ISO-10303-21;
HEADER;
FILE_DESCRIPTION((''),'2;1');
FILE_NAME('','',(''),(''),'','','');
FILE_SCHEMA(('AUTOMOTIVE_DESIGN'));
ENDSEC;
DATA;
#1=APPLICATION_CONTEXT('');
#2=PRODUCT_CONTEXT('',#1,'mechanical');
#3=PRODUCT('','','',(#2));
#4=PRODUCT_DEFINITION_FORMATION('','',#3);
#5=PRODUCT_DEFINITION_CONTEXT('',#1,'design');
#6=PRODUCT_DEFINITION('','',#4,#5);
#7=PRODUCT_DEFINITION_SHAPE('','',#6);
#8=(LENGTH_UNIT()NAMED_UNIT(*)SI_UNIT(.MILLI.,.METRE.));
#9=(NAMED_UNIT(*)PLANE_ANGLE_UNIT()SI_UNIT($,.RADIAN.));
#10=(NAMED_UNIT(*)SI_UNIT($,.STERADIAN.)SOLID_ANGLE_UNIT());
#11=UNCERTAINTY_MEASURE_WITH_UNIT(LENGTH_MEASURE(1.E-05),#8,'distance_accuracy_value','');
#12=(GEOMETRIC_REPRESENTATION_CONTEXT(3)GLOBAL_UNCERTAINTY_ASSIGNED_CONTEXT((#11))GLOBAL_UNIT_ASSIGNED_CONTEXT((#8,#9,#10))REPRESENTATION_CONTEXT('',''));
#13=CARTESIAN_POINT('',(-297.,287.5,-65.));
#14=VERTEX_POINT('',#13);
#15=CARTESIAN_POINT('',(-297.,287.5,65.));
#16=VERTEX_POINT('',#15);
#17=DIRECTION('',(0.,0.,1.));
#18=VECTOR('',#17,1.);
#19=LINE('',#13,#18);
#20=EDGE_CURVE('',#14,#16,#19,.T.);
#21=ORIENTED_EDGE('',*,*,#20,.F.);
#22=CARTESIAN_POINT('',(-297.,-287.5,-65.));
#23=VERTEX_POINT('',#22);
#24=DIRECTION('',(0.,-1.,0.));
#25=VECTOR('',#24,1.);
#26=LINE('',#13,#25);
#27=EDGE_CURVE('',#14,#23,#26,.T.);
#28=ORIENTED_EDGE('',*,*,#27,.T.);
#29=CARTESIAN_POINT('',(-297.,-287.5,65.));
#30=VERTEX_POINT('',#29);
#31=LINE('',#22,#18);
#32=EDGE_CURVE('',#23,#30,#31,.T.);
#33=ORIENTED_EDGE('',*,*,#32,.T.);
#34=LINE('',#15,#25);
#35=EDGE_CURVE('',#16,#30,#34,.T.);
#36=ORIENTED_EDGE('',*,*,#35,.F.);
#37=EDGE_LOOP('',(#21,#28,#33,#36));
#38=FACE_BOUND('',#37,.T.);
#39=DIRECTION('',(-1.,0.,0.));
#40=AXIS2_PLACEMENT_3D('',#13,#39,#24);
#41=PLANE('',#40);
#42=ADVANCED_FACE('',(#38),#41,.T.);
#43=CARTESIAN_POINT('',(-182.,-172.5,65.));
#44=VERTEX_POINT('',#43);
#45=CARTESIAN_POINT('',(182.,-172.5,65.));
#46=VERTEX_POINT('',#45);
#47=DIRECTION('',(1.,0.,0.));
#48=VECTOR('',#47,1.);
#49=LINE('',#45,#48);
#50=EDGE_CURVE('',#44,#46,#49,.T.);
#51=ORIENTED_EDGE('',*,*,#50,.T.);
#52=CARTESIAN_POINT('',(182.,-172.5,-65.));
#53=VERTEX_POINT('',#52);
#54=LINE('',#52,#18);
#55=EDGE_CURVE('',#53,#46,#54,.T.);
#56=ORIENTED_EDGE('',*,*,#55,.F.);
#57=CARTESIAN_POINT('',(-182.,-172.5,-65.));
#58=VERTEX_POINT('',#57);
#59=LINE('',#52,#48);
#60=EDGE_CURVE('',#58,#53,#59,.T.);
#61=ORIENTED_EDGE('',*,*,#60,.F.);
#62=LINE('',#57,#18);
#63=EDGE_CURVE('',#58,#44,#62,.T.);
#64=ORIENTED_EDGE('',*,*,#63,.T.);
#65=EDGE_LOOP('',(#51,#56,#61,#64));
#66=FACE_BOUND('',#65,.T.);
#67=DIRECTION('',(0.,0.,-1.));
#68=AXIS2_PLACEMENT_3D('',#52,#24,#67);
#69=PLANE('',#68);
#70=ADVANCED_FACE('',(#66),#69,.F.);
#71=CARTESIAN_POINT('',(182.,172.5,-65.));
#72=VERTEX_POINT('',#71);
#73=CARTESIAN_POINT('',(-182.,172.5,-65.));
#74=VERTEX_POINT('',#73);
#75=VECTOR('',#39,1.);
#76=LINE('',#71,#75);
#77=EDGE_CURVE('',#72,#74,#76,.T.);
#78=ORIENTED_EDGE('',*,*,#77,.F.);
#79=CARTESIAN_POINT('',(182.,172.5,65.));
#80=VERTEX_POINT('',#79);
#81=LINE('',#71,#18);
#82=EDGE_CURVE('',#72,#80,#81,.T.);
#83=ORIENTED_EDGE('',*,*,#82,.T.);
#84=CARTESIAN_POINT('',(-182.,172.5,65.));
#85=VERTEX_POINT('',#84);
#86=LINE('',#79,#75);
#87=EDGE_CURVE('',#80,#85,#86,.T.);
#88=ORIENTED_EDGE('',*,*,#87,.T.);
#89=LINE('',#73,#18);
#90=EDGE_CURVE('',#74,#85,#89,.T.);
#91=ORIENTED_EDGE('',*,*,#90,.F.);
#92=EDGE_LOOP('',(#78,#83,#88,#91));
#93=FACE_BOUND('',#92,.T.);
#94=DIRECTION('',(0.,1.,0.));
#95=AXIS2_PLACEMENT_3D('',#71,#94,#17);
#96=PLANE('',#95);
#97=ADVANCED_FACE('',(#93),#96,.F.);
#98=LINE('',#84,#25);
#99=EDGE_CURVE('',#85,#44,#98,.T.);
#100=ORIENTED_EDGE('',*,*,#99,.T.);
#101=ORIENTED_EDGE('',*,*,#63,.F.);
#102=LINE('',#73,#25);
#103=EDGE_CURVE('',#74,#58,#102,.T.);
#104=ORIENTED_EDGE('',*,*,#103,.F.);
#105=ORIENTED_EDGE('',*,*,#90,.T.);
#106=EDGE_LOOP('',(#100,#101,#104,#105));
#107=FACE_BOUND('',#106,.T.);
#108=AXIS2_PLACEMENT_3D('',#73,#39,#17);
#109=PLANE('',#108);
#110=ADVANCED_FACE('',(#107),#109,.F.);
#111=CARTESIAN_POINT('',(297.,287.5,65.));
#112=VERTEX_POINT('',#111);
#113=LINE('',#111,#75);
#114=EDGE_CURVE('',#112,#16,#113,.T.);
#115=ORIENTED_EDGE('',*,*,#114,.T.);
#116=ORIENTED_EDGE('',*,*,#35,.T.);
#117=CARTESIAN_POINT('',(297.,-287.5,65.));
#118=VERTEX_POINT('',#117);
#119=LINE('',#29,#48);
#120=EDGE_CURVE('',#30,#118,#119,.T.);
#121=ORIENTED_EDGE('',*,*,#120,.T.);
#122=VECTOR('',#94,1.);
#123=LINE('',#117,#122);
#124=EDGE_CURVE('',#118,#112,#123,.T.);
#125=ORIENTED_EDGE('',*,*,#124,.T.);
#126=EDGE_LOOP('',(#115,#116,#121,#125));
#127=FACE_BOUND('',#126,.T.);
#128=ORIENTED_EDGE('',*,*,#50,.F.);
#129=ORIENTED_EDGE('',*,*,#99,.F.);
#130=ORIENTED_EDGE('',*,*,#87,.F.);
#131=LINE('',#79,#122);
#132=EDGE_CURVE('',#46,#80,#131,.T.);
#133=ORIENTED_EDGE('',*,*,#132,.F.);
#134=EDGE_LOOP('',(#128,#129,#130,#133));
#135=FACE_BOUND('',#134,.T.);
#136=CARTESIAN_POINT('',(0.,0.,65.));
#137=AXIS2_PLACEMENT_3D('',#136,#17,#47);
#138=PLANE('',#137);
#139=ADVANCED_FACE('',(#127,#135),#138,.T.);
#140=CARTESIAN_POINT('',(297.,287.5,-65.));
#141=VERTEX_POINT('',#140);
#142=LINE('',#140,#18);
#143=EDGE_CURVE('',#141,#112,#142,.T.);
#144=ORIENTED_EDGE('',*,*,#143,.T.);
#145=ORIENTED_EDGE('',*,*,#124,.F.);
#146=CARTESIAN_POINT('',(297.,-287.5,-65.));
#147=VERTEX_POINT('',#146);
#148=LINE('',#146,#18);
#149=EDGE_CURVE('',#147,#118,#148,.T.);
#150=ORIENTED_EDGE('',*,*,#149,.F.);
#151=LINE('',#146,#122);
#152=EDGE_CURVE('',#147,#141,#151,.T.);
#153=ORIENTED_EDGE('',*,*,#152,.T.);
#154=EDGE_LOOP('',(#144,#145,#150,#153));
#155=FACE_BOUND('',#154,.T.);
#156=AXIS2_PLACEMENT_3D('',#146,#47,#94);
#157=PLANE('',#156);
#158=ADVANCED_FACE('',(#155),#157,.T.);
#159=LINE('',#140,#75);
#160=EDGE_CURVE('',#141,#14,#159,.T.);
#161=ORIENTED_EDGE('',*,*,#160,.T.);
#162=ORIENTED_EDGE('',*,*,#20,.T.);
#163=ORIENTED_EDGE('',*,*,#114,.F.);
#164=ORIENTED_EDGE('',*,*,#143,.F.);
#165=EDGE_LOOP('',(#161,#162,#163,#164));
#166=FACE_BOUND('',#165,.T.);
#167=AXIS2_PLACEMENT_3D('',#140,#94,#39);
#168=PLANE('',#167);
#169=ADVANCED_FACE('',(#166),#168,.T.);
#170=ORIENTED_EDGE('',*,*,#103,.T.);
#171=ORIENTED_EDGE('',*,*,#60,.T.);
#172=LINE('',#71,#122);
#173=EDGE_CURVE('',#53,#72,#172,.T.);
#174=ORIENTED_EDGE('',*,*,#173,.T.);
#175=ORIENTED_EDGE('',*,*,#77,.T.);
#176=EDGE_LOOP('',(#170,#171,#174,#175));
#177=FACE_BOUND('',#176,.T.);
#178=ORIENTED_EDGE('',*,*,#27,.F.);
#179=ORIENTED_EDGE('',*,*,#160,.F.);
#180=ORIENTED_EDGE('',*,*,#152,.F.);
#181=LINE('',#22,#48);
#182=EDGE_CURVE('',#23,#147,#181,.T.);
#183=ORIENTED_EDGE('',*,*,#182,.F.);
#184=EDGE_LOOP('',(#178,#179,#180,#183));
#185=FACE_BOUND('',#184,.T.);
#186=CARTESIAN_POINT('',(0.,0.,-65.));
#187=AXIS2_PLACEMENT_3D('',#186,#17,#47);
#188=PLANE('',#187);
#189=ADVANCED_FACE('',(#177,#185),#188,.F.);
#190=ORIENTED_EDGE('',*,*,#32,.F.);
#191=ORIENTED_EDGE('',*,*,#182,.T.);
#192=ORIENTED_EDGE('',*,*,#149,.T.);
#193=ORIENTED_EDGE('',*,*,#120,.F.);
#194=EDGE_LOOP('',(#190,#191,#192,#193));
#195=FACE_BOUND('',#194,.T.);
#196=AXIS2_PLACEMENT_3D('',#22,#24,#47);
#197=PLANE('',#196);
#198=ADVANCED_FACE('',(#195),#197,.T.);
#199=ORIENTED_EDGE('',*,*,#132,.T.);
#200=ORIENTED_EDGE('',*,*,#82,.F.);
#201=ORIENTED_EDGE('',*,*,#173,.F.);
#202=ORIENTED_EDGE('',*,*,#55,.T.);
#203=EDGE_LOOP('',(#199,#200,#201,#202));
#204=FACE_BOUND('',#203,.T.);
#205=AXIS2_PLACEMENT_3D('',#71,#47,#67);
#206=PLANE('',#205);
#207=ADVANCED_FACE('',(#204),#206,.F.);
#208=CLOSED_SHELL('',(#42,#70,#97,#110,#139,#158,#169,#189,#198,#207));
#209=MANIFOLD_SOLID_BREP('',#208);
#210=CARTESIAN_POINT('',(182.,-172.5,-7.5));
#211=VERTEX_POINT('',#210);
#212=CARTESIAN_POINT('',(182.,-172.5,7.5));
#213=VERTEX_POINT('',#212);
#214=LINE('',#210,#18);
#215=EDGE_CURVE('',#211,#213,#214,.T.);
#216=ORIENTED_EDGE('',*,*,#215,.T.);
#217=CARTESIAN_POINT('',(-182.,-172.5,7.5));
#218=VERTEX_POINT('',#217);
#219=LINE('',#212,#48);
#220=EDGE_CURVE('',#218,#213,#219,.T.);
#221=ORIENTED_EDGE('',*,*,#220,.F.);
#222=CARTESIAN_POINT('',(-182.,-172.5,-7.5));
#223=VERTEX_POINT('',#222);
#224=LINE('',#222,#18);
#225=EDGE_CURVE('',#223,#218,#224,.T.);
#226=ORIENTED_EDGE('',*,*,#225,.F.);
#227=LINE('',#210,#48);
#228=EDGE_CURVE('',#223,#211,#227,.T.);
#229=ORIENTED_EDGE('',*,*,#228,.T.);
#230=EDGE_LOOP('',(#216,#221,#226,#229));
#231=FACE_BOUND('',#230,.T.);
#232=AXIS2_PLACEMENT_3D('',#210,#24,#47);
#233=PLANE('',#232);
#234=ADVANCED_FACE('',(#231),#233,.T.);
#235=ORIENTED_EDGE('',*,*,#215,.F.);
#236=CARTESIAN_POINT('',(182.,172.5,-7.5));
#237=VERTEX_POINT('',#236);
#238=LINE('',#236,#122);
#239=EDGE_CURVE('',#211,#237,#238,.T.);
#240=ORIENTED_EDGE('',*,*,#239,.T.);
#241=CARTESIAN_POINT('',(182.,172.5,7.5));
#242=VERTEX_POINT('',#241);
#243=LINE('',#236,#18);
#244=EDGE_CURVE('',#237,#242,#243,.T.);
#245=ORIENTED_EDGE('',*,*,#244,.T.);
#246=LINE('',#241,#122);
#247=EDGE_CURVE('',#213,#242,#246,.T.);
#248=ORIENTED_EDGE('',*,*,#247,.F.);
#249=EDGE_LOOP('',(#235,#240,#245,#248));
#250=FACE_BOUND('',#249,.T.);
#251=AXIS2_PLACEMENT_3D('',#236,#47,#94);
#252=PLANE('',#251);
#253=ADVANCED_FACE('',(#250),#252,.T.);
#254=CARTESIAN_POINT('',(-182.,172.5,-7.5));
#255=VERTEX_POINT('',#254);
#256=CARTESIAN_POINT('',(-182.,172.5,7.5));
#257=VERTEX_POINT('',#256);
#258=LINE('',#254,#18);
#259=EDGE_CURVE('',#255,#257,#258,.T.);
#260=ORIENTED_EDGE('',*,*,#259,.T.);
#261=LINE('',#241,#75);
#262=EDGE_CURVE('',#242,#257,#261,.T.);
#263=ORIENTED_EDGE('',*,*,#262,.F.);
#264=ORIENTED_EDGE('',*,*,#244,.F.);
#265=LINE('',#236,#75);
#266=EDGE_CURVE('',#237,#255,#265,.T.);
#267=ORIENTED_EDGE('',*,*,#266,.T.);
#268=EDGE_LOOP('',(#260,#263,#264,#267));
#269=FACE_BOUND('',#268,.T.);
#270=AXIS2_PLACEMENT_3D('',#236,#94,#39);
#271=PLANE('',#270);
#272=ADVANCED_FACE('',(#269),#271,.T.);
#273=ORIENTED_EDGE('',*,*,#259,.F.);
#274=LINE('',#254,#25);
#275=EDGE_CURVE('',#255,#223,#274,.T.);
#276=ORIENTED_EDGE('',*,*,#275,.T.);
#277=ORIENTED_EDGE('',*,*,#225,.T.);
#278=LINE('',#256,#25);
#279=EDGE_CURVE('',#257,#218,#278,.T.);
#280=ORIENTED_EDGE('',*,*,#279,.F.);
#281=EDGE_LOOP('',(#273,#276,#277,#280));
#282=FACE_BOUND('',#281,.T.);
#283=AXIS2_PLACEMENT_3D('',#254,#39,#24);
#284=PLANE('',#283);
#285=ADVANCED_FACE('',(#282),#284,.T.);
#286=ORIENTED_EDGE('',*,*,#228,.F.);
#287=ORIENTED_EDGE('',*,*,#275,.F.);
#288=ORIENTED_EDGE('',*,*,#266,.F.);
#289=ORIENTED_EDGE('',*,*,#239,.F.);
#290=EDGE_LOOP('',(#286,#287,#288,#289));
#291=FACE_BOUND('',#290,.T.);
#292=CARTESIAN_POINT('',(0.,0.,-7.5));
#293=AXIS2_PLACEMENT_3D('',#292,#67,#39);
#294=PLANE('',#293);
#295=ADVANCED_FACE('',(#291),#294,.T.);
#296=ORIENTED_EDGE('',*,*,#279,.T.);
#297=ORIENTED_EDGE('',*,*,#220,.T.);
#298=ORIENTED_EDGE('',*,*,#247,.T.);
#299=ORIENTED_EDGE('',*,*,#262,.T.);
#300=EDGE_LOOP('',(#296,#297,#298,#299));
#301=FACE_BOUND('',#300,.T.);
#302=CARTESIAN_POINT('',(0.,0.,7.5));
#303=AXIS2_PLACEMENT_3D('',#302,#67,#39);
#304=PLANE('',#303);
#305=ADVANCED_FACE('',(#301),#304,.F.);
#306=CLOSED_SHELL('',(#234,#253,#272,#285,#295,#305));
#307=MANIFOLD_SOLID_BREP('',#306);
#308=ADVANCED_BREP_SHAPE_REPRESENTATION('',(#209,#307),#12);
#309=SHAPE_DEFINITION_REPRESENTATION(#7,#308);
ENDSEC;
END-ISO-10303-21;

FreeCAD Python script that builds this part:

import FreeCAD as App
import Part
import Sketcher
from FreeCAD import Vector
Q = App.Units.Quantity

doc = App.newDocument("Part")
body = doc.addObject("PartDesign::Body", "Body")

# Sketch on XY plane
sketch1 = body.newObject("Sketcher::SketchObject", "Sketch")
sketch1.AttachmentSupport = (doc.getObject("XY_Plane"), [""])
sketch1.MapMode = "FlatFace"
sketch1.addGeometry(Part.LineSegment(Vector(-182, 172, 0), Vector(-182, -172, 0)), False)
sketch1.addGeometry(Part.LineSegment(Vector(-182, -172, 0), Vector(182, -172, 0)), False)
sketch1.addGeometry(Part.LineSegment(Vector(182, -172, 0), Vector(182, 172, 0)), False)
sketch1.addGeometry(Part.LineSegment(Vector(182, 172, 0), Vector(-182, 172, 0)), False)
sketch1.addConstraint(Sketcher.Constraint("Coincident", 0, 2, 1, 1))
sketch1.addConstraint(Sketcher.Constraint("Coincident", 1, 2, 2, 1))
sketch1.addConstraint(Sketcher.Constraint("Coincident", 2, 2, 3, 1))
sketch1.addConstraint(Sketcher.Constraint("Coincident", 3, 2, 0, 1))
sketch1.addConstraint(Sketcher.Constraint("Vertical", 0))
sketch1.addConstraint(Sketcher.Constraint("Horizontal", 1))
sketch1.addConstraint(Sketcher.Constraint("Vertical", 2))
sketch1.addConstraint(Sketcher.Constraint("Horizontal", 3))
sketch1.addConstraint(Sketcher.Constraint("Symmetric", 0, 2, 2, 2, -1, 1))
sketch1.addConstraint(Sketcher.Constraint("DistanceX", 1, 1, 1, 2, Q("364 mm")))
sketch1.addConstraint(Sketcher.Constraint("DistanceY", 0, 2, 0, 1, Q("345 mm")))
pad1 = body.newObject("PartDesign::Pad", "Pad")
pad1.Profile = sketch1
pad1.Type = "TwoLengths"
pad1.Length = 7.5
pad1.Length2 = 7.5
body2 = doc.addObject("PartDesign::Body", "Body001")

# Sketch on XY plane
sketch2 = body2.newObject("Sketcher::SketchObject", "Sketch001")
sketch2.AttachmentSupport = (doc.getObject("XY_Plane001"), [""])
sketch2.MapMode = "FlatFace"
sketch2.addGeometry(Part.LineSegment(Vector(-297, 288, 0), Vector(-297, -288, 0)), False)
sketch2.addGeometry(Part.LineSegment(Vector(-297, -288, 0), Vector(297, -288, 0)), False)
sketch2.addGeometry(Part.LineSegment(Vector(297, -288, 0), Vector(297, 288, 0)), False)
sketch2.addGeometry(Part.LineSegment(Vector(297, 288, 0), Vector(-297, 288, 0)), False)
sketch2.addGeometry(Part.LineSegment(Vector(182, -172, 0), Vector(-182, -172, 0)), False)
sketch2.addGeometry(Part.LineSegment(Vector(-182, -172, 0), Vector(-182, 172, 0)), False)
sketch2.addGeometry(Part.LineSegment(Vector(-182, 172, 0), Vector(182, 172, 0)), False)
sketch2.addGeometry(Part.LineSegment(Vector(182, 172, 0), Vector(182, -172, 0)), False)
sketch2.addConstraint(Sketcher.Constraint("Coincident", 0, 2, 1, 1))
sketch2.addConstraint(Sketcher.Constraint("Coincident", 1, 2, 2, 1))
sketch2.addConstraint(Sketcher.Constraint("Coincident", 2, 2, 3, 1))
sketch2.addConstraint(Sketcher.Constraint("Coincident", 3, 2, 0, 1))
sketch2.addConstraint(Sketcher.Constraint("Coincident", 4, 2, 5, 1))
sketch2.addConstraint(Sketcher.Constraint("Coincident", 5, 2, 6, 1))
sketch2.addConstraint(Sketcher.Constraint("Coincident", 6, 2, 7, 1))
sketch2.addConstraint(Sketcher.Constraint("Coincident", 7, 2, 4, 1))
sketch2.addConstraint(Sketcher.Constraint("Vertical", 0))
sketch2.addConstraint(Sketcher.Constraint("Horizontal", 1))
sketch2.addConstraint(Sketcher.Constraint("Vertical", 2))
sketch2.addConstraint(Sketcher.Constraint("Horizontal", 3))
sketch2.addConstraint(Sketcher.Constraint("Horizontal", 4))
sketch2.addConstraint(Sketcher.Constraint("Vertical", 5))
sketch2.addConstraint(Sketcher.Constraint("Horizontal", 6))
sketch2.addConstraint(Sketcher.Constraint("Vertical", 7))
sketch2.addConstraint(Sketcher.Constraint("Symmetric", 0, 2, 2, 2, -1, 1))
sketch2.addConstraint(Sketcher.Constraint("Symmetric", 4, 2, 6, 2, -1, 1))
sketch2.addConstraint(Sketcher.Constraint("DistanceX", 1, 1, 1, 2, Q("594 mm")))
sketch2.addConstraint(Sketcher.Constraint("DistanceX", 4, 2, 4, 1, Q("364 mm")))
sketch2.addConstraint(Sketcher.Constraint("DistanceY", 0, 2, 0, 1, Q("575 mm")))
sketch2.addConstraint(Sketcher.Constraint("DistanceY", 5, 1, 5, 2, Q("345 mm")))
pad2 = body2.newObject("PartDesign::Pad", "Pad001")
pad2.Profile = sketch2
pad2.Type = "TwoLengths"
pad2.Length = 65
pad2.Length2 = 65

doc.recompute()
